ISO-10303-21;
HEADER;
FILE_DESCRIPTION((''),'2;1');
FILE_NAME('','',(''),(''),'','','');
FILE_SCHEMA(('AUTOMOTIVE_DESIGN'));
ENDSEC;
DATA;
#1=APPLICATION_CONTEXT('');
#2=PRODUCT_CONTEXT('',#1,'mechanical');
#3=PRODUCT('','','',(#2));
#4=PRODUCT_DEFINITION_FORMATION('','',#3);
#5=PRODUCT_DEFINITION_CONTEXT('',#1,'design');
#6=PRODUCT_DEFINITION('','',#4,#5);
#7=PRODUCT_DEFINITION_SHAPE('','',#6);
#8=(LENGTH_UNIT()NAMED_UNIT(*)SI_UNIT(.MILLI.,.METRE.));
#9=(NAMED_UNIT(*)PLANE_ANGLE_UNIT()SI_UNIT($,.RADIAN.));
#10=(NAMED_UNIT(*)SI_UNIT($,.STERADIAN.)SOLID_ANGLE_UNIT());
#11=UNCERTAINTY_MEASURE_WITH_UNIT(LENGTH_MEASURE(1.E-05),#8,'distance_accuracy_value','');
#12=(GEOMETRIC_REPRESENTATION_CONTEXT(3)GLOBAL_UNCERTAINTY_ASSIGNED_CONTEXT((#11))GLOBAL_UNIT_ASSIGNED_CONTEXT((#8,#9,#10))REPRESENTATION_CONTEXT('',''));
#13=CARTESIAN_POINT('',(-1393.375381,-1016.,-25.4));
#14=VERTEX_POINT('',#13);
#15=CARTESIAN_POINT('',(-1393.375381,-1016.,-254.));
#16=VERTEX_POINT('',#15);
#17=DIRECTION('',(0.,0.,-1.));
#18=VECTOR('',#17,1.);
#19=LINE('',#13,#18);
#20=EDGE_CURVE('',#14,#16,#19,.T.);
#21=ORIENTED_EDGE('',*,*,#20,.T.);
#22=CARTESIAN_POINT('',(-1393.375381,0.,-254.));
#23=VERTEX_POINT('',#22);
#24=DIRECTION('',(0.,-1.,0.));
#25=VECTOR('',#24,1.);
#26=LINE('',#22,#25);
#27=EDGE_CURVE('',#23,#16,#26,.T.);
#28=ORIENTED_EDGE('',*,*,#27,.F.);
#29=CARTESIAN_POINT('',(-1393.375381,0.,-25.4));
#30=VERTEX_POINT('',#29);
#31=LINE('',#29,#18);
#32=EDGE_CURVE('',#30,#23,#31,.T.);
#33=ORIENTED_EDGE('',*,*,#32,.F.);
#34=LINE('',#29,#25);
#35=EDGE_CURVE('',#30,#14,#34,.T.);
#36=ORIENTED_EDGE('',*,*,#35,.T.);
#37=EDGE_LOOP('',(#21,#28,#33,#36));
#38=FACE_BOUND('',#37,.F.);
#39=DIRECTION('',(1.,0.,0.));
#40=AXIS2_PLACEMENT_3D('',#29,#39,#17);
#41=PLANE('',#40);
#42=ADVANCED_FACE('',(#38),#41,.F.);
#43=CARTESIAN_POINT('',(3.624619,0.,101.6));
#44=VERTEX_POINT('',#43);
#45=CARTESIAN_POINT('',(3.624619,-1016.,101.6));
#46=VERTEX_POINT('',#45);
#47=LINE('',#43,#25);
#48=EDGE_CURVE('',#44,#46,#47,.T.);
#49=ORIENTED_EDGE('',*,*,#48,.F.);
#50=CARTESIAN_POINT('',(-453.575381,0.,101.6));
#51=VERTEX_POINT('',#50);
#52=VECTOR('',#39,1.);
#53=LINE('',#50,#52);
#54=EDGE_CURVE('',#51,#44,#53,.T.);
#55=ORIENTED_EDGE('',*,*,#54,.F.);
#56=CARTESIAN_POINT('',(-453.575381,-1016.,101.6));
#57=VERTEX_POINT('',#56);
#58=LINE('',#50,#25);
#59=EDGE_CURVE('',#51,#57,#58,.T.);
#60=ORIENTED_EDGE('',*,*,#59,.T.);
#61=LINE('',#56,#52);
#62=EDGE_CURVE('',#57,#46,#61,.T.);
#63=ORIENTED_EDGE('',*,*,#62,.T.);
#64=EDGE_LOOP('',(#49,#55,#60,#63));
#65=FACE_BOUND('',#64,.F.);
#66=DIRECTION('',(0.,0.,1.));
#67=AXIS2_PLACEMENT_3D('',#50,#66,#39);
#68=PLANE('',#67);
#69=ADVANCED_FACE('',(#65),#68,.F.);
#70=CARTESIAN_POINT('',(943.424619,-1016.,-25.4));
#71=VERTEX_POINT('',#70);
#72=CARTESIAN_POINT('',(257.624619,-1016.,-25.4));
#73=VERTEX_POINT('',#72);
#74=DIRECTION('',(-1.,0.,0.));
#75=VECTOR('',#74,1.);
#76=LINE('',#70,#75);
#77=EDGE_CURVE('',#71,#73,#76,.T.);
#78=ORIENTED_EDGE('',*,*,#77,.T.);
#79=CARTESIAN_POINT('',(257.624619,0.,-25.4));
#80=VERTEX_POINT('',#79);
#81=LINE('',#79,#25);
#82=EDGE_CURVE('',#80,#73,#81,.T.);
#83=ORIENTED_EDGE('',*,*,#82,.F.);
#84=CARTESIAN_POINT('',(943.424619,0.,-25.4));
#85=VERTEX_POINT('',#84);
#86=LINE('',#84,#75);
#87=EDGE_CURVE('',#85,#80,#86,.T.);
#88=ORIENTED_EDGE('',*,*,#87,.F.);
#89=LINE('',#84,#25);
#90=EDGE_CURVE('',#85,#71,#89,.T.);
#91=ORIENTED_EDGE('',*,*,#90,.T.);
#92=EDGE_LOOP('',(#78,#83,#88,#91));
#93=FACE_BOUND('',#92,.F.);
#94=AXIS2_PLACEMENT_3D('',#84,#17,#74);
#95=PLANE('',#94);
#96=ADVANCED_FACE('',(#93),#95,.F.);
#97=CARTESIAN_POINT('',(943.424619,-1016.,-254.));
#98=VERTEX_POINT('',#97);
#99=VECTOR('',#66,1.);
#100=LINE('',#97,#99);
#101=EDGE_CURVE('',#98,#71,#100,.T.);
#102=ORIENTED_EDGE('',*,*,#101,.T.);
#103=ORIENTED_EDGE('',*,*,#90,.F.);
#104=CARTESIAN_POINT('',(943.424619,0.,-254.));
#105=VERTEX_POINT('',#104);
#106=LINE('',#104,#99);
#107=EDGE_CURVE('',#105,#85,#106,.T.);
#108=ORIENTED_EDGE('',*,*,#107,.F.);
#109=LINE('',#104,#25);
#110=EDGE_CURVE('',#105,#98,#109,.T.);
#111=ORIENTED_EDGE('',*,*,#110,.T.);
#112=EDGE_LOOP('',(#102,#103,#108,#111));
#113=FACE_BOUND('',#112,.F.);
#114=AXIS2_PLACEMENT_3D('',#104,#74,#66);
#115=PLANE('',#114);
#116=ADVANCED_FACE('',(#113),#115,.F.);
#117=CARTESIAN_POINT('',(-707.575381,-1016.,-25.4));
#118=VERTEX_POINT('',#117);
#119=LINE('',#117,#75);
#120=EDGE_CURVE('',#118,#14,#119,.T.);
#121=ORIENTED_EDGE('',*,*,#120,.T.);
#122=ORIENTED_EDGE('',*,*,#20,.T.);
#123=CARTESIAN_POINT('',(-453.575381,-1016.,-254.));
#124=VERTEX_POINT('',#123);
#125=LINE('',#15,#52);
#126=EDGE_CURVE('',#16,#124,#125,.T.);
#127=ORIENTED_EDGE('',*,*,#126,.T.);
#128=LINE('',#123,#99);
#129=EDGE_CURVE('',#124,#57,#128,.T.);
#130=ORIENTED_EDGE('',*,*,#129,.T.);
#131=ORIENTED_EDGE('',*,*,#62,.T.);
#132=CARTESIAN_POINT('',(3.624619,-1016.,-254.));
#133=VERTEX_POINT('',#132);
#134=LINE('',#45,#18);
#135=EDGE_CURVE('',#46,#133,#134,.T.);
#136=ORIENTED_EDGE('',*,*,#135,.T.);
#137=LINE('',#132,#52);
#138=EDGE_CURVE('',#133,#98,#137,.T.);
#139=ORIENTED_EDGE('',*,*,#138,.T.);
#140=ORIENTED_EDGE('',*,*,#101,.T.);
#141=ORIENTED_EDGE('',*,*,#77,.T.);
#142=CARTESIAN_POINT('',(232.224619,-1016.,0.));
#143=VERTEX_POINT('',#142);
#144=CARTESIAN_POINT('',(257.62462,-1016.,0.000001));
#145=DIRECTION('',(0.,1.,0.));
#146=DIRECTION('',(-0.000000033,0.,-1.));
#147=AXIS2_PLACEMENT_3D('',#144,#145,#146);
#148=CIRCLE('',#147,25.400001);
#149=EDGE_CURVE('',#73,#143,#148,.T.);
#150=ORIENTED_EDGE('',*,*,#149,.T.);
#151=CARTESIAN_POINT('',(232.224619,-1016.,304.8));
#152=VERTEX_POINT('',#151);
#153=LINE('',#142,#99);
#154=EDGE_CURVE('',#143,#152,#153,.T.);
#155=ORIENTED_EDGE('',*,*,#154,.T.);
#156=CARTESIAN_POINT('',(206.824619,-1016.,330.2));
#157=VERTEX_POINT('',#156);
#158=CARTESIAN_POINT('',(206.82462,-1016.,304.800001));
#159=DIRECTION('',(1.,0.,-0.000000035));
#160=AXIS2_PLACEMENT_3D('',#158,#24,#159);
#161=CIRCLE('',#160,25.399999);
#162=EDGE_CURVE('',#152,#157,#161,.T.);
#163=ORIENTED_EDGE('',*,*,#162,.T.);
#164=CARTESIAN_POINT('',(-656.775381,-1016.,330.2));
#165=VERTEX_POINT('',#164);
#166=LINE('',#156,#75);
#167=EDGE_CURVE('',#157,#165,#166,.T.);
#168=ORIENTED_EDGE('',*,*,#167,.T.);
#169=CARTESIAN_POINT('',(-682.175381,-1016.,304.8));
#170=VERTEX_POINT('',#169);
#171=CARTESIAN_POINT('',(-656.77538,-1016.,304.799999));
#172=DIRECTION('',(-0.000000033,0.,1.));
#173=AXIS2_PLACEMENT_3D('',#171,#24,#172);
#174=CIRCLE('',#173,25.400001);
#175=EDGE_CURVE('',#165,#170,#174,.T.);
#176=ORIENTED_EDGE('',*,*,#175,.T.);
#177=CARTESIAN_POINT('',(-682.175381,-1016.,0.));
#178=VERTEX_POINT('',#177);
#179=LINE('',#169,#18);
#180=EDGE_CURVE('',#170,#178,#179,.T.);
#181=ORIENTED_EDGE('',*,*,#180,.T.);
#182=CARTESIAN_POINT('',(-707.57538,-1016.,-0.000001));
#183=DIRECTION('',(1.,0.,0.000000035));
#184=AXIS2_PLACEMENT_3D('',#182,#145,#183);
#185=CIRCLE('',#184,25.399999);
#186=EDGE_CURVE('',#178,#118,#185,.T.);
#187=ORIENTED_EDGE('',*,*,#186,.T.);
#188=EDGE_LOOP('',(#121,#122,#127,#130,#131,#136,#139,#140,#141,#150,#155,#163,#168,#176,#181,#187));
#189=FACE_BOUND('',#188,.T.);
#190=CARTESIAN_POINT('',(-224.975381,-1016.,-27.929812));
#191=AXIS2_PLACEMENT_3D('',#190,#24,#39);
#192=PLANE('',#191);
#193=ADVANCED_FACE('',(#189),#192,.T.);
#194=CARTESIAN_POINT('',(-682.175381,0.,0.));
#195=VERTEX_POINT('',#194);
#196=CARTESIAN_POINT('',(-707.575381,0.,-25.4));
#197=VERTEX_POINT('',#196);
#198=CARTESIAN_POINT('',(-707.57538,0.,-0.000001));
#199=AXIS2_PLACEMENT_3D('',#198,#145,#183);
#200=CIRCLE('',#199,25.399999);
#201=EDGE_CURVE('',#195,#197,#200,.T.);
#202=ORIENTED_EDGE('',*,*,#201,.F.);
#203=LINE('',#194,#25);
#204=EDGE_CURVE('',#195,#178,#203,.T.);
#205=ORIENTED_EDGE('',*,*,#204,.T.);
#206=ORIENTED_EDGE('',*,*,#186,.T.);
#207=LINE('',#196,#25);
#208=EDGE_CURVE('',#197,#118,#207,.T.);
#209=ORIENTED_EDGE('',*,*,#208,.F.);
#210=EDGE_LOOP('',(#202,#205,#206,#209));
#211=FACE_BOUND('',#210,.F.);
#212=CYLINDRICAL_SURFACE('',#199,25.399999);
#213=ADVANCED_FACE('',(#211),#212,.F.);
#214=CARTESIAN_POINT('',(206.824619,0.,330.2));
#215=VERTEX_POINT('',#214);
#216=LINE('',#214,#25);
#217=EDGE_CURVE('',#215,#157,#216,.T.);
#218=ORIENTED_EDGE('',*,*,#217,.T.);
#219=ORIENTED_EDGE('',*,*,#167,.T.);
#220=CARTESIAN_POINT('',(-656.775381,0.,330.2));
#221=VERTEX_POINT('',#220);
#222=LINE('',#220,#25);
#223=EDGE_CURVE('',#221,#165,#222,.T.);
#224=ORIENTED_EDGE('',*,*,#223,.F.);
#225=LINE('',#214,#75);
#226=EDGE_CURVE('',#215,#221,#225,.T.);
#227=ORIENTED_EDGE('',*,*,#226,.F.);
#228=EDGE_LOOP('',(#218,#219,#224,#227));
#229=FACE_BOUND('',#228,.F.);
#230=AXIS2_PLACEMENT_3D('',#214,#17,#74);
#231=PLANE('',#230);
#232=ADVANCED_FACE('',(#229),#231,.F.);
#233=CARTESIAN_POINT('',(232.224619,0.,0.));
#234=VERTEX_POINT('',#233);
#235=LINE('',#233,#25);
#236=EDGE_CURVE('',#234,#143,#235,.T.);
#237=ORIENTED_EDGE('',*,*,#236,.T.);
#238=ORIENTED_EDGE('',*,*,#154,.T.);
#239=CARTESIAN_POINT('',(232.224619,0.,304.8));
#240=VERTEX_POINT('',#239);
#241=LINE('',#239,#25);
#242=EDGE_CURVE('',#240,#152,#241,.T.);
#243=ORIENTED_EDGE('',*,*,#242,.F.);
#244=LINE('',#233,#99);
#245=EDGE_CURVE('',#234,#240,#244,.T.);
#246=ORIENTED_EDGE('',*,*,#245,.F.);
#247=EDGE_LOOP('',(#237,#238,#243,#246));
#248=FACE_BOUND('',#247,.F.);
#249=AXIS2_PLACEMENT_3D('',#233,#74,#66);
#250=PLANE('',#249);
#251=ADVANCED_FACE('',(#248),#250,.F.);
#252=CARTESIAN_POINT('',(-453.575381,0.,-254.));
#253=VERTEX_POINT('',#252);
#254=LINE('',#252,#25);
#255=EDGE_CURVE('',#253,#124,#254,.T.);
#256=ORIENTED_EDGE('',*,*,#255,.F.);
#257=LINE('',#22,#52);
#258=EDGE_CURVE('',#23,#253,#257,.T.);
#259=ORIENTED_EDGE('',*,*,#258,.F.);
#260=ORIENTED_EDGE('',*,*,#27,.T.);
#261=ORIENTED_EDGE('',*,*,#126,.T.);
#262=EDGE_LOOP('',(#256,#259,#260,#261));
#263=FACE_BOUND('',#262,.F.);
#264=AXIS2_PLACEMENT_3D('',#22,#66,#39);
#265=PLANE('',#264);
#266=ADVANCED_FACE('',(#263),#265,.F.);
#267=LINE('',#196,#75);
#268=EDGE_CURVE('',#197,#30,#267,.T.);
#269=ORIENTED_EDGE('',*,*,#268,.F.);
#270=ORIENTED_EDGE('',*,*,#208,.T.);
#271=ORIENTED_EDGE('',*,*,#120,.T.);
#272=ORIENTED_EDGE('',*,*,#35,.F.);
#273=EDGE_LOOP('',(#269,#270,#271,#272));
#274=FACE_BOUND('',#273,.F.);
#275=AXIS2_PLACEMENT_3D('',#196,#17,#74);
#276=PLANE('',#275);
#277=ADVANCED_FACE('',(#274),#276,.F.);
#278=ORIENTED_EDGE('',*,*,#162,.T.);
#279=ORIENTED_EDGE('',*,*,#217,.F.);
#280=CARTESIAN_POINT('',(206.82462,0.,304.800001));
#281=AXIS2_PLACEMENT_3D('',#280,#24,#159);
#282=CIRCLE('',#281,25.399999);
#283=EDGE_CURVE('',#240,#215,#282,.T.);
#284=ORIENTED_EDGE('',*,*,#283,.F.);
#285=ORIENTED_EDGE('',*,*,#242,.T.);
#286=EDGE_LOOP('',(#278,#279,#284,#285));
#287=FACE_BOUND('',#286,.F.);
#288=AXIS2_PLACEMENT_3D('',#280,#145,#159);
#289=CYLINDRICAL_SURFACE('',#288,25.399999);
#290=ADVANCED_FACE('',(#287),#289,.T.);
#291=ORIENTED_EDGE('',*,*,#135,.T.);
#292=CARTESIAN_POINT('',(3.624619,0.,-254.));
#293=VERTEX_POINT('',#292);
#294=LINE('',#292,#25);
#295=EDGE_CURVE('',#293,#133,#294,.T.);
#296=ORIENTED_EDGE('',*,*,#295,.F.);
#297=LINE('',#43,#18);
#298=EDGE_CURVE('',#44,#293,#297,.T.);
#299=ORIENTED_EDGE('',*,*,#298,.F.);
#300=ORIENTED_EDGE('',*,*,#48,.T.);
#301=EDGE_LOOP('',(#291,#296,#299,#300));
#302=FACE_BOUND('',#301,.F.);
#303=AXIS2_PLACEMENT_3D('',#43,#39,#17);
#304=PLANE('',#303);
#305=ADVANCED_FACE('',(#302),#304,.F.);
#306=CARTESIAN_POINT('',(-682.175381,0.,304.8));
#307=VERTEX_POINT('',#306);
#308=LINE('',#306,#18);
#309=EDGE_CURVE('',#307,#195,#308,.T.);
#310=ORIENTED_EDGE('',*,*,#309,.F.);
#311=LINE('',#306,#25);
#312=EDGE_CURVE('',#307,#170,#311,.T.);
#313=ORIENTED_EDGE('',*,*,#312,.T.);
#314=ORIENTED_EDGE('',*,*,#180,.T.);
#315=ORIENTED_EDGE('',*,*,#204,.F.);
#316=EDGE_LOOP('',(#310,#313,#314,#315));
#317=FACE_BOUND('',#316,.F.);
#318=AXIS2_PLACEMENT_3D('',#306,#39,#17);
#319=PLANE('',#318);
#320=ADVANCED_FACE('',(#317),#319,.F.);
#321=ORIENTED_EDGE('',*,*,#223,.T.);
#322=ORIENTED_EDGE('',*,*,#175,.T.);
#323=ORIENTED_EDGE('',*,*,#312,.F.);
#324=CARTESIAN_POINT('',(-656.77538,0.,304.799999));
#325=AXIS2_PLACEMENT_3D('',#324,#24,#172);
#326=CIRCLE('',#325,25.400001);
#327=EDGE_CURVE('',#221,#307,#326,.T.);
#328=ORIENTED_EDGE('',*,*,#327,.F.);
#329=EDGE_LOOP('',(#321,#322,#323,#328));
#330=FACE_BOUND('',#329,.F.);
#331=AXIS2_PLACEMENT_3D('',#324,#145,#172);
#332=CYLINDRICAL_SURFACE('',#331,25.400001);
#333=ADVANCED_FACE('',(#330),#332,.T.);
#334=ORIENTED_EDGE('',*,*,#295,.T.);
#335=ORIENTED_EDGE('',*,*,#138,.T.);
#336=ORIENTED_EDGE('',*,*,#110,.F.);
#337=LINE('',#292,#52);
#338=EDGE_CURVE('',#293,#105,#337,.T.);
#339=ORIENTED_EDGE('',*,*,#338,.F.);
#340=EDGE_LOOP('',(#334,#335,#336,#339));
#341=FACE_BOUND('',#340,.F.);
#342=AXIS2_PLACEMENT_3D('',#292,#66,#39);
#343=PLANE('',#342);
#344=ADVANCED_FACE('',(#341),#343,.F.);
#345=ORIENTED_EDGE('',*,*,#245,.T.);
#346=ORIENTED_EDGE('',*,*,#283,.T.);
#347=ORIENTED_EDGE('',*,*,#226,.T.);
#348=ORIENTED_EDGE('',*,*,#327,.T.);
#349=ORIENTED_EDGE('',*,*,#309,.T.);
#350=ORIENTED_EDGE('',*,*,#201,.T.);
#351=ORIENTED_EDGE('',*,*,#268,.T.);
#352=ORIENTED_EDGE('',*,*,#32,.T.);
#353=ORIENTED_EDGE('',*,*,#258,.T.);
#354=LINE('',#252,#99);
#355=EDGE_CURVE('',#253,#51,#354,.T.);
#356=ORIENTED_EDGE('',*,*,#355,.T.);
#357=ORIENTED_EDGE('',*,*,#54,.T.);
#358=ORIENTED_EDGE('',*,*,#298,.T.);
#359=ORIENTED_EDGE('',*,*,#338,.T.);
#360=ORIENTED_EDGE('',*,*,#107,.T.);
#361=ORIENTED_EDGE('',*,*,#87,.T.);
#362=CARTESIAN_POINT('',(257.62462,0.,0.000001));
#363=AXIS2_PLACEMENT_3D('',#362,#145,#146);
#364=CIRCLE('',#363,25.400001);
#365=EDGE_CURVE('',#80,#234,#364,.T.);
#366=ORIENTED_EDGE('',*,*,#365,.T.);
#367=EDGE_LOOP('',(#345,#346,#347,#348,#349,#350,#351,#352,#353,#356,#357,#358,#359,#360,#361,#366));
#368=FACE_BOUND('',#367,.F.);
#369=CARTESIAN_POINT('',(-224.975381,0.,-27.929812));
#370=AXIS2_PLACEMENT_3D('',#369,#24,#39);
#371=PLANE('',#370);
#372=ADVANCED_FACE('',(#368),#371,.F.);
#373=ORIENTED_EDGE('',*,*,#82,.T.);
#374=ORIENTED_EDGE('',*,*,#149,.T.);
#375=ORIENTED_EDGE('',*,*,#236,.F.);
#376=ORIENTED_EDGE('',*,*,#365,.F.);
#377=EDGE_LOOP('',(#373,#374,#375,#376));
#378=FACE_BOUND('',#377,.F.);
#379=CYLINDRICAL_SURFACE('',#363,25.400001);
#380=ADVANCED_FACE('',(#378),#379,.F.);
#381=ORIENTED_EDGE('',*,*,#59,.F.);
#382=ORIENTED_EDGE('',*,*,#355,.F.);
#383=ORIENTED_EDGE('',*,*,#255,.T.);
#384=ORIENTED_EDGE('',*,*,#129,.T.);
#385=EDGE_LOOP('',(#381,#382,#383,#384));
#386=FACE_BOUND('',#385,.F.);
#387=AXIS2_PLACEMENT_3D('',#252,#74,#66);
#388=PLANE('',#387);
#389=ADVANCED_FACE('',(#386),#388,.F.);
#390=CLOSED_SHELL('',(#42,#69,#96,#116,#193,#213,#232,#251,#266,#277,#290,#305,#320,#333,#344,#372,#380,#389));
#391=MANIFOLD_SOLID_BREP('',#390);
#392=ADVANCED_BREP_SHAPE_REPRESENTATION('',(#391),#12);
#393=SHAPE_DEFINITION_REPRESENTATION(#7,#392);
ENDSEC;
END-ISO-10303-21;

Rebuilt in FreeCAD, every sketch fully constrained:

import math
import FreeCAD as App
import Part
import Sketcher

V = App.Vector
Q = App.Units.Quantity

doc = App.newDocument("Part")
body = doc.addObject("PartDesign::Body", "Body")

sketch1 = body.newObject("Sketcher::SketchObject", "Sketch")
sketch1.AttachmentSupport = (doc.getObject("XZ_Plane"), [""])
sketch1.MapMode = "FlatFace"
sketch1.addGeometry([
    Part.LineSegment(V(-1393, -25, 0), V(-1393, -254, 0)),
    Part.LineSegment(V(-1393, -254, 0), V(-454, -254, 0)),
    Part.LineSegment(V(-454, -254, 0), V(-454, 102, 0)),
    Part.LineSegment(V(-454, 102, 0), V(4, 102, 0)),
    Part.LineSegment(V(4, 102, 0), V(4, -254, 0)),
    Part.LineSegment(V(4, -254, 0), V(943, -254, 0)),
    Part.LineSegment(V(943, -254, 0), V(943, -25, 0)),
    Part.LineSegment(V(943, -25, 0), V(258, -25, 0)),
    Part.ArcOfCircle(Part.Circle(V(258, 0, 0), V(0, 0, 1), 25), math.radians(-180), math.radians(-90)),
    Part.LineSegment(V(232, 0, 0), V(232, 305, 0)),
    Part.ArcOfCircle(Part.Circle(V(207, 305, 0), V(0, 0, 1), 25), math.radians(0), math.radians(90)),
    Part.LineSegment(V(207, 330, 0), V(-657, 330, 0)),
    Part.ArcOfCircle(Part.Circle(V(-657, 305, 0), V(0, 0, 1), 25), math.radians(90), math.radians(180)),
    Part.LineSegment(V(-682, 305, 0), V(-682, 0, 0)),
    Part.ArcOfCircle(Part.Circle(V(-708, 0, 0), V(0, 0, 1), 25), math.radians(-90), math.radians(0)),
    Part.LineSegment(V(-708, -25, 0), V(-1393, -25, 0)),
], False)
sketch1.addConstraint([
    Sketcher.Constraint("Coincident", 0, 2, 1, 1),
    Sketcher.Constraint("Coincident", 1, 2, 2, 1),
    Sketcher.Constraint("Coincident", 2, 2, 3, 1),
    Sketcher.Constraint("Coincident", 3, 2, 4, 1),
    Sketcher.Constraint("Coincident", 4, 2, 5, 1),
    Sketcher.Constraint("Coincident", 5, 2, 6, 1),
    Sketcher.Constraint("Coincident", 6, 2, 7, 1),
    Sketcher.Constraint("Tangent", 7, 2, 8, 2),
    Sketcher.Constraint("Tangent", 8, 1, 9, 1),
    Sketcher.Constraint("Tangent", 9, 2, 10, 1),
    Sketcher.Constraint("Tangent", 10, 2, 11, 1),
    Sketcher.Constraint("Tangent", 11, 2, 12, 1),
    Sketcher.Constraint("Tangent", 12, 2, 13, 1),
    Sketcher.Constraint("Tangent", 13, 2, 14, 2),
    Sketcher.Constraint("Tangent", 14, 1, 15, 1),
    Sketcher.Constraint("Coincident", 15, 2, 0, 1),
    Sketcher.Constraint("Vertical", 0),
    Sketcher.Constraint("Horizontal", 1),
    Sketcher.Constraint("Vertical", 2),
    Sketcher.Constraint("Horizontal", 3),
    Sketcher.Constraint("Vertical", 4),
    Sketcher.Constraint("Horizontal", 5),
    Sketcher.Constraint("Vertical", 6),
    Sketcher.Constraint("Horizontal", 7),
    Sketcher.Constraint("Vertical", 9),
    Sketcher.Constraint("Horizontal", 11),
    Sketcher.Constraint("Vertical", 13),
    Sketcher.Constraint("Horizontal", 15),
    Sketcher.Constraint("Equal", 8, 10),
    Sketcher.Constraint("Equal", 10, 12),
    Sketcher.Constraint("Equal", 12, 14),
    Sketcher.Constraint("PointOnObject", 8, 3, -1),
    Sketcher.Constraint("PointOnObject", 14, 3, -1),
    Sketcher.Constraint("Horizontal", 1, 2, 4, 2),
    Sketcher.Constraint("Equal", 1, 5),
    Sketcher.Constraint("Equal", 7, 15),
    Sketcher.Constraint("Radius", 8, Q("1 in")),
    Sketcher.Constraint("DistanceX", 1, 1, 1, 2, Q("37 in")),
    Sketcher.Constraint("DistanceX", 3, 1, 3, 2, Q("18 in")),
    Sketcher.Constraint("DistanceX", 7, 2, 7, 1, Q("27 in")),
    Sketcher.Constraint("DistanceY", 0, 2, 0, 1, Q("9 in")),
    Sketcher.Constraint("DistanceY", 2, 1, 2, 2, Q("14 in")),
    Sketcher.Constraint("DistanceY", 9, 1, 9, 2, Q("12 in")),
    Sketcher.Constraint("DistanceX", -1, 1, 8, 3, Q("257.62462 mm")),
])
pad1 = body.newObject("PartDesign::Pad", "Pad")
pad1.Profile = sketch1
pad1.Length = Q("40 in")

doc.recompute()
